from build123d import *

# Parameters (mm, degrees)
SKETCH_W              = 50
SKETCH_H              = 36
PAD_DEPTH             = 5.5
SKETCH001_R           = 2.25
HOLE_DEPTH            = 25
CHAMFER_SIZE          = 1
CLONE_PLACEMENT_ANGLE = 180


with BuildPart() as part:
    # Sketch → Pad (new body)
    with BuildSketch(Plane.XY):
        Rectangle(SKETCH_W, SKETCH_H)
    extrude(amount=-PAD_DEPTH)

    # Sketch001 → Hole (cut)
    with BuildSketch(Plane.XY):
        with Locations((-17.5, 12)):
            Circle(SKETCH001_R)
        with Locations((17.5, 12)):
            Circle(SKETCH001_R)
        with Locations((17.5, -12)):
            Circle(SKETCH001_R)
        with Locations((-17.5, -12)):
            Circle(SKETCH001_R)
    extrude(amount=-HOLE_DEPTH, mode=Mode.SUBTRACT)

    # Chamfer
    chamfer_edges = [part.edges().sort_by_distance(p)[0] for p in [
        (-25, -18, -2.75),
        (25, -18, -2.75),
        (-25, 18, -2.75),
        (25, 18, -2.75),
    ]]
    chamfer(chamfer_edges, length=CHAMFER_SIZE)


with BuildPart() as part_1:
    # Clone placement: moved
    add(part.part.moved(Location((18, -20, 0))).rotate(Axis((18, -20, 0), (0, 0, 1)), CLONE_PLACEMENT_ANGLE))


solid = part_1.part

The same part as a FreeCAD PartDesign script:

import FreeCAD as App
import Part
import Sketcher

V = App.Vector
Q = App.Units.Quantity


def edges_at(feature, points):
    """Names of the edges that pass closest to the given points."""
    edges = feature.Shape.Edges
    near = lambda p: min(range(len(edges)), key=lambda i: edges[i].distToShape(Part.Vertex(*p))[0])
    return sorted({f"Edge{near(p) + 1}" for p in points})


def add_polygon(sketch, points):
    """Adds a closed chain of lines whose ends are joined by coincident constraints."""
    first, n = sketch.GeometryCount, len(points)
    for a, b in zip(points, points[1:] + points[:1]):
        sketch.addGeometry(Part.LineSegment(App.Vector(*a, 0), App.Vector(*b, 0)), False)
    for i in range(n):
        sketch.addConstraint(Sketcher.Constraint("Coincident", first + i, 2, first + (i + 1) % n, 1))

doc = App.newDocument("Part")
body = doc.addObject("PartDesign::Body", "Body")

# Sketch on XY plane
sketch1 = body.newObject("Sketcher::SketchObject", "Sketch")
sketch1.AttachmentSupport = (doc.getObject("XY_Plane"), [""])
sketch1.MapMode = "FlatFace"
add_polygon(sketch1, [(-25, 18), (-25, -18), (25, -18), (25, 18)])  # lines 0-3
sketch1.addConstraint(Sketcher.Constraint("Vertical", 0))
sketch1.addConstraint(Sketcher.Constraint("Horizontal", 1))
sketch1.addConstraint(Sketcher.Constraint("Vertical", 2))
sketch1.addConstraint(Sketcher.Constraint("Horizontal", 3))
sketch1.addConstraint(Sketcher.Constraint("Symmetric", 0, 2, 2, 2, -1, 1))
sketch1.addConstraint(Sketcher.Constraint("DistanceX", 1, 1, 1, 2, Q("50 mm")))
sketch1.addConstraint(Sketcher.Constraint("DistanceY", 0, 2, 0, 1, Q("36 mm")))
pad1 = body.newObject("PartDesign::Pad", "Pad")
pad1.Profile = sketch1
pad1.Length = 5.5
pad1.Reversed = True

# Sketch on XY plane
sketch2 = body.newObject("Sketcher::SketchObject", "Sketch001")
sketch2.AttachmentSupport = (doc.getObject("XY_Plane"), [""])
sketch2.MapMode = "FlatFace"
sketch2.addGeometry(Part.Circle(V(-17.5, 12, 0), V(0, 0, 1), 2.25), False)
sketch2.addGeometry(Part.Circle(V(17.5, 12, 0), V(0, 0, 1), 2.25), False)
sketch2.addGeometry(Part.Circle(V(17.5, -12, 0), V(0, 0, 1), 2.25), False)
sketch2.addGeometry(Part.Circle(V(-17.5, -12, 0), V(0, 0, 1), 2.25), False)
sketch2.addConstraint(Sketcher.Constraint("Equal", 0, 1))
sketch2.addConstraint(Sketcher.Constraint("Equal", 1, 2))
sketch2.addConstraint(Sketcher.Constraint("Equal", 2, 3))
sketch2.addConstraint(Sketcher.Constraint("Symmetric", 0, 3, 2, 3, -1, 1))
sketch2.addConstraint(Sketcher.Constraint("Symmetric", 1, 3, 3, 3, -1, 1))
sketch2.addConstraint(Sketcher.Constraint("Symmetric", 0, 3, 1, 3, -2))
sketch2.addConstraint(Sketcher.Constraint("Diameter", 0, Q("4.5 mm")))
sketch2.addConstraint(Sketcher.Constraint("DistanceY", -1, 1, 0, 3, Q("12 mm")))
sketch2.addConstraint(Sketcher.Constraint("DistanceX", 0, 3, 1, 3, Q("35 mm")))
pocket1 = body.newObject("PartDesign::Pocket", "Pocket")
pocket1.Profile = sketch2
pocket1.Length = 25
doc.recompute()

chamfer = body.newObject("PartDesign::Chamfer", "Chamfer")
chamfer.Base = (pocket1, edges_at(pocket1, [
    (-25, -18, -2.75),
    (25, -18, -2.75),
    (-25, 18, -2.75),
    (25, 18, -2.75),
]))
chamfer.Size = 1
body2 = doc.addObject("PartDesign::Body", "Body001")
doc.recompute()

body.Placement = App.Placement(V(18, -20, 0), App.Rotation(V(0, 0, 1), 180))
boolean = body2.newObject("PartDesign::Boolean", "Boolean")
boolean.Type = "Fuse"
boolean.addObjects([body])

doc.recompute()
